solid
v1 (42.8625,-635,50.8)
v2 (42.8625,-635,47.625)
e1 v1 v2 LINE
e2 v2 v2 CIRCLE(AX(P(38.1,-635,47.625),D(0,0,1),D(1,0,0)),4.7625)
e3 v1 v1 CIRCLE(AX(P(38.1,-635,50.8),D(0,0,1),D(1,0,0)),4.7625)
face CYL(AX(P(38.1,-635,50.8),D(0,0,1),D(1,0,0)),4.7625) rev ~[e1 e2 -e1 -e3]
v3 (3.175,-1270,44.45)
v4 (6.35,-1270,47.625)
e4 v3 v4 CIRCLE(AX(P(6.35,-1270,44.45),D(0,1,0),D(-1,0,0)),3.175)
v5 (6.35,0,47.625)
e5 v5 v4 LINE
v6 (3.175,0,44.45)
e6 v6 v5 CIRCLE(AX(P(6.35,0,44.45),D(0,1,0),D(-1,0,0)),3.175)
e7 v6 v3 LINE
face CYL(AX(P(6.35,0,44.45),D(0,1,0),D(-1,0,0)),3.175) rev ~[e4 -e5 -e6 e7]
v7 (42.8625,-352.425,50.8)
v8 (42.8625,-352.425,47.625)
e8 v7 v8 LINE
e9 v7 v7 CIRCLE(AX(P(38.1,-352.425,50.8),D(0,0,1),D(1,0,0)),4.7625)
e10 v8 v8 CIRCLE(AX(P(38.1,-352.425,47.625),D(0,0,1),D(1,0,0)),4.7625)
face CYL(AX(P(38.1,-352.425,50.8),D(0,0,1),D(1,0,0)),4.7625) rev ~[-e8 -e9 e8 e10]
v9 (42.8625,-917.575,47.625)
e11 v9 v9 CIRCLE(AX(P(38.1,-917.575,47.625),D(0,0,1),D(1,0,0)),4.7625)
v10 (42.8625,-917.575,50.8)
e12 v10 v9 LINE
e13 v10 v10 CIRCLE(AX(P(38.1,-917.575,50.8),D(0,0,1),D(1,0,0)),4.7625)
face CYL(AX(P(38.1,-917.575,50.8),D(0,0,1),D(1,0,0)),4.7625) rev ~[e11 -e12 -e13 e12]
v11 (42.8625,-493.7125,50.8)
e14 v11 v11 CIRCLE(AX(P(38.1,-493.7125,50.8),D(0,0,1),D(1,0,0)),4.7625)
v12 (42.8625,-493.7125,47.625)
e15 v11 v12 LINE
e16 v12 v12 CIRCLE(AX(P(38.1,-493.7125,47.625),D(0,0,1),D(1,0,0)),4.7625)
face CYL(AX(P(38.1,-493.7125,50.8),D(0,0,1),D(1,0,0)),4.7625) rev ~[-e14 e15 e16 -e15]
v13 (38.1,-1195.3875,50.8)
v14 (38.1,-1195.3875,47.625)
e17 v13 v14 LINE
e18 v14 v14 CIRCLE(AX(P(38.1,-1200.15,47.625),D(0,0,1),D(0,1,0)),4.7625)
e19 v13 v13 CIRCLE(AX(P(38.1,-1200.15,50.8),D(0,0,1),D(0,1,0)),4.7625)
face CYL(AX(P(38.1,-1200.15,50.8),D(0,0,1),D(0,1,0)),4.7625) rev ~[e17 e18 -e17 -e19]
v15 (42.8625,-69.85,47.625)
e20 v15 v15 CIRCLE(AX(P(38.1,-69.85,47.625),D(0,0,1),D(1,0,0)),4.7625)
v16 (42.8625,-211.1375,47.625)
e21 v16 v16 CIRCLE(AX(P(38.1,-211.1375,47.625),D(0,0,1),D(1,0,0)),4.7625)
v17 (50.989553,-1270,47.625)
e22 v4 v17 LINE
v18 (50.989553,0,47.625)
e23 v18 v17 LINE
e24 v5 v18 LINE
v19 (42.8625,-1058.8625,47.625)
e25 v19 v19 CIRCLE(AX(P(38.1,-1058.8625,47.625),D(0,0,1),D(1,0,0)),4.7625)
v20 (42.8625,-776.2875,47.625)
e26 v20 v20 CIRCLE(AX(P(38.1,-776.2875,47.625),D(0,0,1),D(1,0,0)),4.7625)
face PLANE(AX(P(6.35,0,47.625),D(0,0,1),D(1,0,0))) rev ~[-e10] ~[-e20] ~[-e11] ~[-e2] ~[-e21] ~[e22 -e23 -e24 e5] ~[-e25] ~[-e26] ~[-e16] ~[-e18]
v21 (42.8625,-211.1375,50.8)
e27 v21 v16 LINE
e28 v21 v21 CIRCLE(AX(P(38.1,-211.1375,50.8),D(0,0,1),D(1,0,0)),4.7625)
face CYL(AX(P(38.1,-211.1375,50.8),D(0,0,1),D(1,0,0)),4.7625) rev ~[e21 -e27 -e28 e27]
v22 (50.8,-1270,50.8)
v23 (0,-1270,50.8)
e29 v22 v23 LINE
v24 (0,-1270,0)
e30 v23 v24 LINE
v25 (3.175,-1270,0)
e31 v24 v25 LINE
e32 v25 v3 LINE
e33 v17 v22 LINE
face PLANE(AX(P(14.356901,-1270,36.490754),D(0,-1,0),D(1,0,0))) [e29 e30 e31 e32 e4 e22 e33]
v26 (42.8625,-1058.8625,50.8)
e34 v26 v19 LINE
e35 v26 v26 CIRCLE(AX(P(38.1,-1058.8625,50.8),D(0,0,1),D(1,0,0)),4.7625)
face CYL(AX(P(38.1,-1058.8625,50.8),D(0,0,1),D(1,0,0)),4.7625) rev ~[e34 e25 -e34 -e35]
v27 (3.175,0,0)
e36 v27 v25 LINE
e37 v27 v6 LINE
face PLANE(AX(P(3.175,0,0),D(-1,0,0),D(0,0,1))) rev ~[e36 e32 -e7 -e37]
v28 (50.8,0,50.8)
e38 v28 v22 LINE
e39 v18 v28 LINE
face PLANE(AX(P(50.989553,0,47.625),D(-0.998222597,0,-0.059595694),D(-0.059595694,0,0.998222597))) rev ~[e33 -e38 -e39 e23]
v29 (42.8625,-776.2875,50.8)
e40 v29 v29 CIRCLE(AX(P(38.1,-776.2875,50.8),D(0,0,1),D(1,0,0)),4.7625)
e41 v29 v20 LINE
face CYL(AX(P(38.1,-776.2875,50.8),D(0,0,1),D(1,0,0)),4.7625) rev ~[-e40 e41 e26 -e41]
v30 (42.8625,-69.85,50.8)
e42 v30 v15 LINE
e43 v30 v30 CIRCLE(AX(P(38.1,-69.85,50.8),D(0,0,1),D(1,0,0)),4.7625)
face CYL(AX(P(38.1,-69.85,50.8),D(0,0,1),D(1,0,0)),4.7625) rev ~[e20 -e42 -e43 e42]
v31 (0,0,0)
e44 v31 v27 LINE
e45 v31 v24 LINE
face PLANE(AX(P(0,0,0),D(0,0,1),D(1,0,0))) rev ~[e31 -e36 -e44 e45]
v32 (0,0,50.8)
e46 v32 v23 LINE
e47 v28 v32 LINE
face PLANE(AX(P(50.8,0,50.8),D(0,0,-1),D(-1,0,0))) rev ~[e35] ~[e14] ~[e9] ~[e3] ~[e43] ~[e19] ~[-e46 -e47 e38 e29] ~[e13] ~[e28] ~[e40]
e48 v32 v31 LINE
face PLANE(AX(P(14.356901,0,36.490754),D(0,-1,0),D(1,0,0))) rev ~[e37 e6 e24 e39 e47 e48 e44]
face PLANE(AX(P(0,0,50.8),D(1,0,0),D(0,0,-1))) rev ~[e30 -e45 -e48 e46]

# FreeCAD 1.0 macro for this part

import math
import FreeCAD as App
import Part
import Sketcher
Q = App.Units.Quantity

doc = App.newDocument("Part")
body = doc.addObject("PartDesign::Body", "Body")

# Sketch on XZ plane
sketch1 = doc.addObject("Sketcher::SketchObject", "Sketch")
body.addObject(sketch1)
sketch1.AttachmentSupport = (doc.XZ_Plane, [""])
sketch1.MapMode = "FlatFace"
sketch1.addGeometry([
    Part.LineSegment(App.Vector(0, 50.8, 0), App.Vector(0, 0, 0)),  # 0
    Part.LineSegment(App.Vector(0, 0, 0), App.Vector(3.2, 0, 0)),  # 1
    Part.LineSegment(App.Vector(3.2, 0, 0), App.Vector(3.2, 44.5, 0)),  # 2
    Part.ArcOfCircle(Part.Circle(App.Vector(6.3, 44.5, 0), App.Vector(0, 0, 1), 3.2), math.radians(90), math.radians(180)),  # 3
    Part.LineSegment(App.Vector(6.3, 47.6, 0), App.Vector(51, 47.6, 0)),  # 4
    Part.LineSegment(App.Vector(51, 47.6, 0), App.Vector(50.8, 50.8, 0)),  # 5
    Part.LineSegment(App.Vector(50.8, 50.8, 0), App.Vector(0, 50.8, 0)),  # 6
], False)
sketch1.addConstraint([
    Sketcher.Constraint("Coincident", 0, 2, 1, 1),
    Sketcher.Constraint("Coincident", 1, 2, 2, 1),
    Sketcher.Constraint("Tangent", 2, 2, 3, 2),
    Sketcher.Constraint("Tangent", 3, 1, 4, 1),
    Sketcher.Constraint("Coincident", 4, 2, 5, 1),
    Sketcher.Constraint("Coincident", 5, 2, 6, 1),
    Sketcher.Constraint("Coincident", 6, 2, 0, 1),
    Sketcher.Constraint("Vertical", 0),
    Sketcher.Constraint("Horizontal", 1),
    Sketcher.Constraint("Vertical", 2),
    Sketcher.Constraint("Horizontal", 4),
    Sketcher.Constraint("Horizontal", 6),
    Sketcher.Constraint("Coincident", 0, 2, -1, 1),
    Sketcher.Constraint("Equal", 6, 0),
    Sketcher.Constraint("DistanceX", 6, 2, 6, 1, Q("2 in")),
    Sketcher.Constraint("Radius", 3, Q("0.125 in")),
    Sketcher.Constraint("DistanceY", 2, 1, 2, 2, Q("1.75 in")),
    Sketcher.Constraint("DistanceX", 1, 1, 1, 2, Q("0.125 in")),
    Sketcher.Constraint("DistanceX", 4, 1, 4, 2, 44.639553),
])
pad1 = doc.addObject("PartDesign::Pad", "Pad")
body.addObject(pad1)
pad1.Profile = sketch1
pad1.Length = Q("50 in")

# Sketch on XY plane
sketch2 = doc.addObject("Sketcher::SketchObject", "Sketch001")
body.addObject(sketch2)
sketch2.AttachmentSupport = (doc.XY_Plane, [""])
sketch2.MapMode = "FlatFace"
sketch2.AttachmentOffset = App.Placement(App.Vector(0, 0, 2 * 25.4), App.Rotation())
sketch2.addGeometry([
    Part.Circle(App.Vector(38.1, -69.8, 0), App.Vector(0, 0, 1), 4.8),  # 0
    Part.Circle(App.Vector(38.1, -211.1, 0), App.Vector(0, 0, 1), 4.8),  # 1
    Part.Circle(App.Vector(38.1, -352.4, 0), App.Vector(0, 0, 1), 4.8),  # 2
    Part.Circle(App.Vector(38.1, -493.7, 0), App.Vector(0, 0, 1), 4.8),  # 3
    Part.Circle(App.Vector(38.1, -776.3, 0), App.Vector(0, 0, 1), 4.8),  # 4
    Part.Circle(App.Vector(38.1, -635, 0), App.Vector(0, 0, 1), 4.8),  # 5
    Part.Circle(App.Vector(38.1, -917.6, 0), App.Vector(0, 0, 1), 4.8),  # 6
    Part.Circle(App.Vector(38.1, -1058.9, 0), App.Vector(0, 0, 1), 4.8),  # 7
    Part.Circle(App.Vector(38.1, -1200.2, 0), App.Vector(0, 0, 1), 4.8),  # 8
], False)
sketch2.addConstraint([
    Sketcher.Constraint("Equal", 0, 1),
    Sketcher.Constraint("Equal", 1, 2),
    Sketcher.Constraint("Equal", 2, 3),
    Sketcher.Constraint("Equal", 3, 4),
    Sketcher.Constraint("Equal", 4, 5),
    Sketcher.Constraint("Equal", 5, 6),
    Sketcher.Constraint("Equal", 6, 7),
    Sketcher.Constraint("Equal", 7, 8),
    Sketcher.Constraint("Vertical", 0, 3, 1, 3),
    Sketcher.Constraint("Vertical", 1, 3, 2, 3),
    Sketcher.Constraint("Vertical", 2, 3, 3, 3),
    Sketcher.Constraint("Vertical", 3, 3, 4, 3),
    Sketcher.Constraint("Vertical", 4, 3, 5, 3),
    Sketcher.Constraint("Vertical", 5, 3, 6, 3),
    Sketcher.Constraint("Vertical", 6, 3, 7, 3),
    Sketcher.Constraint("Vertical", 7, 3, 8, 3),
    Sketcher.Constraint("Diameter", 0, Q("0.375 in")),
    Sketcher.Constraint("DistanceY", 5, 3, -1, 1, Q("25 in")),
    Sketcher.Constraint("DistanceX", -1, 1, 0, 3, Q("1.5 in")),
    Sketcher.Constraint("DistanceY", 0, 3, -1, 1, Q("2.75 in")),
    Sketcher.Constraint("DistanceY", 8, 3, -1, 1, Q("47.25 in")),
    Sketcher.Constraint("DistanceY", 4, 3, 1, 3, Q("22.25 in")),
    Sketcher.Constraint("DistanceY", 6, 3, 2, 3, Q("22.25 in")),
    Sketcher.Constraint("DistanceY", 7, 3, 3, 3, Q("22.25 in")),
    Sketcher.Constraint("DistanceY", 1, 3, -1, 1, Q("8.3125 in")),
    Sketcher.Constraint("DistanceY", 2, 3, -1, 1, Q("13.875 in")),
    Sketcher.Constraint("DistanceY", 3, 3, -1, 1, Q("19.4375 in")),
])
pocket1 = doc.addObject("PartDesign::Pocket", "Pocket")
body.addObject(pocket1)
pocket1.Profile = sketch2
pocket1.Type = "ThroughAll"

doc.recompute()
